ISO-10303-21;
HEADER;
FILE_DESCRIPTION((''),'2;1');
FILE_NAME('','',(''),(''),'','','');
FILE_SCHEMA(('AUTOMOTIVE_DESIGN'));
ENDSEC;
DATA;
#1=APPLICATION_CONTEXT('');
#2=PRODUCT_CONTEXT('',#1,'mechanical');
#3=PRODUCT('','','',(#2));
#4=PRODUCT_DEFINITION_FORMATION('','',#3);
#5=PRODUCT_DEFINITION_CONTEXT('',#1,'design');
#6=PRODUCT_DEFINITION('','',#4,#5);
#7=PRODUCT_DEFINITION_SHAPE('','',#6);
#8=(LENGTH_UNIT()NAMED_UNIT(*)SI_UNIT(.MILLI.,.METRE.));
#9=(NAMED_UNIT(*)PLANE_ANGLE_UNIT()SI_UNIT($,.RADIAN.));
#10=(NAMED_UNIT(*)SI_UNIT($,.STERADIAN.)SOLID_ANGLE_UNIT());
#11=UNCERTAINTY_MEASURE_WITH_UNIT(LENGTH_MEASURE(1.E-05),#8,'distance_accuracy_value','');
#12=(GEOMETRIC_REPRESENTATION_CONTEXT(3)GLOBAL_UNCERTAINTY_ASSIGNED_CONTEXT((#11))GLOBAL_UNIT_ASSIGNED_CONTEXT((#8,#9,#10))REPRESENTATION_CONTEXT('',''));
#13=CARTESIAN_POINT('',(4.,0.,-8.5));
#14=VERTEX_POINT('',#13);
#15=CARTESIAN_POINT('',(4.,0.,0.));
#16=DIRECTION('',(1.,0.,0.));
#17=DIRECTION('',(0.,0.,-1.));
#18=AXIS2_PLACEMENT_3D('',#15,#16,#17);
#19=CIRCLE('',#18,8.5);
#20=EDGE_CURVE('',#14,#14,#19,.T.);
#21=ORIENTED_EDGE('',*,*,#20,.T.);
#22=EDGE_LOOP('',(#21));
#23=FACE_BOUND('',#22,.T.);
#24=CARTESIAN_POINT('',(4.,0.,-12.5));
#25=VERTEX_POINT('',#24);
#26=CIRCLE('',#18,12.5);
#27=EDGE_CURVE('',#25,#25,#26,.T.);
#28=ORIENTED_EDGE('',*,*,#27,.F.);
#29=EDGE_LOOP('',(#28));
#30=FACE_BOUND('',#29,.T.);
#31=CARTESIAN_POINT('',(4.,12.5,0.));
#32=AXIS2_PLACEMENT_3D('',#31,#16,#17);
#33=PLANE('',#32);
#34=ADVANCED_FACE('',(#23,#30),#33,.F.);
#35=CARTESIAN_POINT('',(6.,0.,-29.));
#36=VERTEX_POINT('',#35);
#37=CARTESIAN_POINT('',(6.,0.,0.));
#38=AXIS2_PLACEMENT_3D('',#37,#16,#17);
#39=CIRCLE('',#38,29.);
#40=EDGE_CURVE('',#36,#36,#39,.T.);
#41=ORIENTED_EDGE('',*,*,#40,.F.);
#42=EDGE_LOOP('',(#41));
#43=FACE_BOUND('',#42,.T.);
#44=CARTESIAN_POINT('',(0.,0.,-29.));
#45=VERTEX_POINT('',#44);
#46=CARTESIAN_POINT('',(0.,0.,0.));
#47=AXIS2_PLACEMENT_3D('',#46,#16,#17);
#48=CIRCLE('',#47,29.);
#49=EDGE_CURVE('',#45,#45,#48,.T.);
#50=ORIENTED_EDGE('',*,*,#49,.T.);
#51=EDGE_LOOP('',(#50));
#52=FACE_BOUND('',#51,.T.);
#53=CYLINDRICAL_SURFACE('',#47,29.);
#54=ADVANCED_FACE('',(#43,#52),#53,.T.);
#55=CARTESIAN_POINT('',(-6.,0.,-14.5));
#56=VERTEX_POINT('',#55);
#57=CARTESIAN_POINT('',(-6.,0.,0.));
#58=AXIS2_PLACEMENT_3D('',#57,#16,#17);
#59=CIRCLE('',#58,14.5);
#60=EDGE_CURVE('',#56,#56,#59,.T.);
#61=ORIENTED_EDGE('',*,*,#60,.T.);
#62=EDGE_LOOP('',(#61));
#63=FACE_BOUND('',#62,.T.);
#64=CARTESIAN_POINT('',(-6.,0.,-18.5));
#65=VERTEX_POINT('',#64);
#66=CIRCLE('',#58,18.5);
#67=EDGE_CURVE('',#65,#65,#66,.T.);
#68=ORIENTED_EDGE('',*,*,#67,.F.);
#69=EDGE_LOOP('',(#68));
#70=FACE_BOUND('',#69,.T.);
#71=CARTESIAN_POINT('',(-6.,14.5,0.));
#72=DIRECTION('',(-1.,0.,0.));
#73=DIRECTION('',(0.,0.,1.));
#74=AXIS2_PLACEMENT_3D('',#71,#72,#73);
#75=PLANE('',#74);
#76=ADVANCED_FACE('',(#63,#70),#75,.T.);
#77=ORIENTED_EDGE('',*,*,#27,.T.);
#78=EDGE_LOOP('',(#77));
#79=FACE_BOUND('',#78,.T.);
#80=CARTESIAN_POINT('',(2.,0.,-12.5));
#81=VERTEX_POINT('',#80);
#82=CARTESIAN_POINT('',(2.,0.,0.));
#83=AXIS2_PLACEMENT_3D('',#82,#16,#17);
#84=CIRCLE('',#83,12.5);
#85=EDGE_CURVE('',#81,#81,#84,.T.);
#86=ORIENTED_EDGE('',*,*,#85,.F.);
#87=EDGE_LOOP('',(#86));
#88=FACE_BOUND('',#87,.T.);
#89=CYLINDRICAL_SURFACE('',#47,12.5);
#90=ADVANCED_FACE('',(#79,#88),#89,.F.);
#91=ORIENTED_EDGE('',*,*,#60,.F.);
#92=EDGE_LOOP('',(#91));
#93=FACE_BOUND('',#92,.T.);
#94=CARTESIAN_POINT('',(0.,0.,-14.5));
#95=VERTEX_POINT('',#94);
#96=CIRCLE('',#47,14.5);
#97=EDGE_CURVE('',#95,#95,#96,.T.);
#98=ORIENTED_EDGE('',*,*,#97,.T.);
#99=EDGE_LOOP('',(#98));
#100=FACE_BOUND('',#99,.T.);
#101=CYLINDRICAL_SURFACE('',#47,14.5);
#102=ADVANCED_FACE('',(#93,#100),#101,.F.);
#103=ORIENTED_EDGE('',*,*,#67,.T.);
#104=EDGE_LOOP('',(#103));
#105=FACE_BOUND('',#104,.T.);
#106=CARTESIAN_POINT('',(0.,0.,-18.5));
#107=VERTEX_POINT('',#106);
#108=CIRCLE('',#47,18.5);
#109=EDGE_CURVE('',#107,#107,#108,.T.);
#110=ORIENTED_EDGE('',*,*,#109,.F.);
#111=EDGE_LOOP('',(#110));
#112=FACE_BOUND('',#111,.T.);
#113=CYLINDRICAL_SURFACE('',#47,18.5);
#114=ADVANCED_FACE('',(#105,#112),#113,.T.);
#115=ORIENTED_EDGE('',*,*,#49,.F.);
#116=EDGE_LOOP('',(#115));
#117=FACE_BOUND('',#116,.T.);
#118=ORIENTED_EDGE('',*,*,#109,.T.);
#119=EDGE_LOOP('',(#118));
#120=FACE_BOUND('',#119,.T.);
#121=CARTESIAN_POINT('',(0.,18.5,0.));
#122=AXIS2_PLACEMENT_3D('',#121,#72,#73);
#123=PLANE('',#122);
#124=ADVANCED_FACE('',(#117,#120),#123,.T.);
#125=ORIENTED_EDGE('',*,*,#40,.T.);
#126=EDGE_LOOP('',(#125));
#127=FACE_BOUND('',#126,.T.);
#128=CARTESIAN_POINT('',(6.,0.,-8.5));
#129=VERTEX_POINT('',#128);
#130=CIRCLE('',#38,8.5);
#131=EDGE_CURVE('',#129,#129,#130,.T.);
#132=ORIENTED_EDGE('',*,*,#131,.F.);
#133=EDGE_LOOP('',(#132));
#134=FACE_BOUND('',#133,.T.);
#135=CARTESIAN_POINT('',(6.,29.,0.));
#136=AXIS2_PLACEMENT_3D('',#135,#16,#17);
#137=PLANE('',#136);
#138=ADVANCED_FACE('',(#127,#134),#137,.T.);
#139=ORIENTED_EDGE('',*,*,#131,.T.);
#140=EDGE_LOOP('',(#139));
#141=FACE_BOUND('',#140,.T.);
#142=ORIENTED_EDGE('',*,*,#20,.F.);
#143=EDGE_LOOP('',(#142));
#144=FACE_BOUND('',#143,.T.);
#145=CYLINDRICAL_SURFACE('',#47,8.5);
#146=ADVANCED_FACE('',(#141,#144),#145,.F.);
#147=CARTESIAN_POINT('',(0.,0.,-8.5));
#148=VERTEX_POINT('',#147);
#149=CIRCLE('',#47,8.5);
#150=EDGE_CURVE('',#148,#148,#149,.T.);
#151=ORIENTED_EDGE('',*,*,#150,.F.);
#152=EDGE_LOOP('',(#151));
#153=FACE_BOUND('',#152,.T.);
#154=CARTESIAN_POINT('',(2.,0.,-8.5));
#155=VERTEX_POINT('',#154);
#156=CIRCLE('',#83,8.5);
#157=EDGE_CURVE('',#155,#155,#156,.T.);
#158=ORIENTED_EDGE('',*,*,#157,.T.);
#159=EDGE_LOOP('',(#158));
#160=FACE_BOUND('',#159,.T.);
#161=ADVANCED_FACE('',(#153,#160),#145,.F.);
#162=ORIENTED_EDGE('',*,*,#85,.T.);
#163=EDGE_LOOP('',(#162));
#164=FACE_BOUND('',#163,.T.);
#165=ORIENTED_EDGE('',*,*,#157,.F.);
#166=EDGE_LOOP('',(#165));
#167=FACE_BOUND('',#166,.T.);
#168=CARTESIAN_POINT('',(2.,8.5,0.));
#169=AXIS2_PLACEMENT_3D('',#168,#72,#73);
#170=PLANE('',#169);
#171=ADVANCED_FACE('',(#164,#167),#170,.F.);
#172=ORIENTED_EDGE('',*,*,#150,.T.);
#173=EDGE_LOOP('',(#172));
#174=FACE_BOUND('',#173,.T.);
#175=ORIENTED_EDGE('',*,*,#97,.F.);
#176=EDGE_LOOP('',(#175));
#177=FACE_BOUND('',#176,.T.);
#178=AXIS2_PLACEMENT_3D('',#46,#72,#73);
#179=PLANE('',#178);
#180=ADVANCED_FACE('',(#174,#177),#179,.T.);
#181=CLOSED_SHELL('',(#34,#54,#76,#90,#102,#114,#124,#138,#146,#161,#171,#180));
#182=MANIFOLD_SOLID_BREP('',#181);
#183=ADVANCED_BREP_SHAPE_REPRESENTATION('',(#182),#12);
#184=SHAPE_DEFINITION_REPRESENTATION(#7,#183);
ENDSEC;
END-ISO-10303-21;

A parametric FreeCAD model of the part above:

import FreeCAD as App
import Part
import Sketcher

V = App.Vector


def add_polygon(sketch, points):
    """Adds a closed chain of lines whose ends are joined by coincident constraints."""
    first, n = sketch.GeometryCount, len(points)
    for a, b in zip(points, points[1:] + points[:1]):
        sketch.addGeometry(Part.LineSegment(App.Vector(*a, 0), App.Vector(*b, 0)), False)
    for i in range(n):
        sketch.addConstraint(Sketcher.Constraint("Coincident", first + i, 2, first + (i + 1) % n, 1))

doc = App.newDocument("Part")
body = doc.addObject("PartDesign::Body", "Body")

sketch1 = body.newObject("Sketcher::SketchObject", "Sketch")
sketch1.AttachmentSupport = (doc.getObject("XY_Plane"), [""])
sketch1.MapMode = "FlatFace"
add_polygon(sketch1, [(0, 14.5), (0, 0), (6, 0), (6, 29), (0, 29), (0, 18.5), (-6, 18.5), (-6, 14.5)])
sketch1.addConstraint([
    Sketcher.Constraint("Vertical", 0),
    Sketcher.Constraint("Horizontal", 1),
    Sketcher.Constraint("Vertical", 2),
    Sketcher.Constraint("Horizontal", 3),
    Sketcher.Constraint("Vertical", 4),
    Sketcher.Constraint("Horizontal", 5),
    Sketcher.Constraint("Vertical", 6),
    Sketcher.Constraint("Horizontal", 7),
    Sketcher.Constraint("Coincident", 0, 2, -1, 1),
    Sketcher.Constraint("PointOnObject", 3, 2, -2),
    Sketcher.Constraint("Equal", 3, 5),
    Sketcher.Constraint("DistanceX", 1, 1, 1, 2, 6.0),
    Sketcher.Constraint("DistanceY", 2, 1, 2, 2, 29.0),
    Sketcher.Constraint("DistanceY", 6, 2, 6, 1, 4.0),
    Sketcher.Constraint("DistanceY", 0, 2, 0, 1, 14.5),
])
revolution = body.newObject("PartDesign::Revolution", "Revolution")
revolution.Profile = sketch1
revolution.ReferenceAxis = (sketch1, ["H_Axis"])
revolution.Angle = 360

sketch2 = body.newObject("Sketcher::SketchObject", "Sketch001")
sketch2.AttachmentSupport = (doc.getObject("XY_Plane"), [""])
sketch2.MapMode = "FlatFace"
add_polygon(sketch2, [(0, 8.5), (0, 0), (6, 0), (6, 8.5), (4, 8.5), (4, 12.5), (2, 12.5), (2, 8.5)])
sketch2.addConstraint([
    Sketcher.Constraint("Vertical", 0),
    Sketcher.Constraint("Horizontal", 1),
    Sketcher.Constraint("Vertical", 2),
    Sketcher.Constraint("Horizontal", 3),
    Sketcher.Constraint("Vertical", 4),
    Sketcher.Constraint("Horizontal", 5),
    Sketcher.Constraint("Vertical", 6),
    Sketcher.Constraint("Horizontal", 7),
    Sketcher.Constraint("Coincident", 0, 2, -1, 1),
    Sketcher.Constraint("Horizontal", 3, 2, 6, 2),
    Sketcher.Constraint("Equal", 3, 5),
    Sketcher.Constraint("Equal", 5, 7),
    Sketcher.Constraint("DistanceX", 1, 1, 1, 2, 6.0),
    Sketcher.Constraint("DistanceY", 4, 1, 4, 2, 4.0),
    Sketcher.Constraint("DistanceY", 0, 2, 0, 1, 8.5),
])
groove = body.newObject("PartDesign::Groove", "Groove")
groove.Profile = sketch2
groove.ReferenceAxis = (sketch2, ["H_Axis"])
groove.Angle = 360

doc.recompute()
